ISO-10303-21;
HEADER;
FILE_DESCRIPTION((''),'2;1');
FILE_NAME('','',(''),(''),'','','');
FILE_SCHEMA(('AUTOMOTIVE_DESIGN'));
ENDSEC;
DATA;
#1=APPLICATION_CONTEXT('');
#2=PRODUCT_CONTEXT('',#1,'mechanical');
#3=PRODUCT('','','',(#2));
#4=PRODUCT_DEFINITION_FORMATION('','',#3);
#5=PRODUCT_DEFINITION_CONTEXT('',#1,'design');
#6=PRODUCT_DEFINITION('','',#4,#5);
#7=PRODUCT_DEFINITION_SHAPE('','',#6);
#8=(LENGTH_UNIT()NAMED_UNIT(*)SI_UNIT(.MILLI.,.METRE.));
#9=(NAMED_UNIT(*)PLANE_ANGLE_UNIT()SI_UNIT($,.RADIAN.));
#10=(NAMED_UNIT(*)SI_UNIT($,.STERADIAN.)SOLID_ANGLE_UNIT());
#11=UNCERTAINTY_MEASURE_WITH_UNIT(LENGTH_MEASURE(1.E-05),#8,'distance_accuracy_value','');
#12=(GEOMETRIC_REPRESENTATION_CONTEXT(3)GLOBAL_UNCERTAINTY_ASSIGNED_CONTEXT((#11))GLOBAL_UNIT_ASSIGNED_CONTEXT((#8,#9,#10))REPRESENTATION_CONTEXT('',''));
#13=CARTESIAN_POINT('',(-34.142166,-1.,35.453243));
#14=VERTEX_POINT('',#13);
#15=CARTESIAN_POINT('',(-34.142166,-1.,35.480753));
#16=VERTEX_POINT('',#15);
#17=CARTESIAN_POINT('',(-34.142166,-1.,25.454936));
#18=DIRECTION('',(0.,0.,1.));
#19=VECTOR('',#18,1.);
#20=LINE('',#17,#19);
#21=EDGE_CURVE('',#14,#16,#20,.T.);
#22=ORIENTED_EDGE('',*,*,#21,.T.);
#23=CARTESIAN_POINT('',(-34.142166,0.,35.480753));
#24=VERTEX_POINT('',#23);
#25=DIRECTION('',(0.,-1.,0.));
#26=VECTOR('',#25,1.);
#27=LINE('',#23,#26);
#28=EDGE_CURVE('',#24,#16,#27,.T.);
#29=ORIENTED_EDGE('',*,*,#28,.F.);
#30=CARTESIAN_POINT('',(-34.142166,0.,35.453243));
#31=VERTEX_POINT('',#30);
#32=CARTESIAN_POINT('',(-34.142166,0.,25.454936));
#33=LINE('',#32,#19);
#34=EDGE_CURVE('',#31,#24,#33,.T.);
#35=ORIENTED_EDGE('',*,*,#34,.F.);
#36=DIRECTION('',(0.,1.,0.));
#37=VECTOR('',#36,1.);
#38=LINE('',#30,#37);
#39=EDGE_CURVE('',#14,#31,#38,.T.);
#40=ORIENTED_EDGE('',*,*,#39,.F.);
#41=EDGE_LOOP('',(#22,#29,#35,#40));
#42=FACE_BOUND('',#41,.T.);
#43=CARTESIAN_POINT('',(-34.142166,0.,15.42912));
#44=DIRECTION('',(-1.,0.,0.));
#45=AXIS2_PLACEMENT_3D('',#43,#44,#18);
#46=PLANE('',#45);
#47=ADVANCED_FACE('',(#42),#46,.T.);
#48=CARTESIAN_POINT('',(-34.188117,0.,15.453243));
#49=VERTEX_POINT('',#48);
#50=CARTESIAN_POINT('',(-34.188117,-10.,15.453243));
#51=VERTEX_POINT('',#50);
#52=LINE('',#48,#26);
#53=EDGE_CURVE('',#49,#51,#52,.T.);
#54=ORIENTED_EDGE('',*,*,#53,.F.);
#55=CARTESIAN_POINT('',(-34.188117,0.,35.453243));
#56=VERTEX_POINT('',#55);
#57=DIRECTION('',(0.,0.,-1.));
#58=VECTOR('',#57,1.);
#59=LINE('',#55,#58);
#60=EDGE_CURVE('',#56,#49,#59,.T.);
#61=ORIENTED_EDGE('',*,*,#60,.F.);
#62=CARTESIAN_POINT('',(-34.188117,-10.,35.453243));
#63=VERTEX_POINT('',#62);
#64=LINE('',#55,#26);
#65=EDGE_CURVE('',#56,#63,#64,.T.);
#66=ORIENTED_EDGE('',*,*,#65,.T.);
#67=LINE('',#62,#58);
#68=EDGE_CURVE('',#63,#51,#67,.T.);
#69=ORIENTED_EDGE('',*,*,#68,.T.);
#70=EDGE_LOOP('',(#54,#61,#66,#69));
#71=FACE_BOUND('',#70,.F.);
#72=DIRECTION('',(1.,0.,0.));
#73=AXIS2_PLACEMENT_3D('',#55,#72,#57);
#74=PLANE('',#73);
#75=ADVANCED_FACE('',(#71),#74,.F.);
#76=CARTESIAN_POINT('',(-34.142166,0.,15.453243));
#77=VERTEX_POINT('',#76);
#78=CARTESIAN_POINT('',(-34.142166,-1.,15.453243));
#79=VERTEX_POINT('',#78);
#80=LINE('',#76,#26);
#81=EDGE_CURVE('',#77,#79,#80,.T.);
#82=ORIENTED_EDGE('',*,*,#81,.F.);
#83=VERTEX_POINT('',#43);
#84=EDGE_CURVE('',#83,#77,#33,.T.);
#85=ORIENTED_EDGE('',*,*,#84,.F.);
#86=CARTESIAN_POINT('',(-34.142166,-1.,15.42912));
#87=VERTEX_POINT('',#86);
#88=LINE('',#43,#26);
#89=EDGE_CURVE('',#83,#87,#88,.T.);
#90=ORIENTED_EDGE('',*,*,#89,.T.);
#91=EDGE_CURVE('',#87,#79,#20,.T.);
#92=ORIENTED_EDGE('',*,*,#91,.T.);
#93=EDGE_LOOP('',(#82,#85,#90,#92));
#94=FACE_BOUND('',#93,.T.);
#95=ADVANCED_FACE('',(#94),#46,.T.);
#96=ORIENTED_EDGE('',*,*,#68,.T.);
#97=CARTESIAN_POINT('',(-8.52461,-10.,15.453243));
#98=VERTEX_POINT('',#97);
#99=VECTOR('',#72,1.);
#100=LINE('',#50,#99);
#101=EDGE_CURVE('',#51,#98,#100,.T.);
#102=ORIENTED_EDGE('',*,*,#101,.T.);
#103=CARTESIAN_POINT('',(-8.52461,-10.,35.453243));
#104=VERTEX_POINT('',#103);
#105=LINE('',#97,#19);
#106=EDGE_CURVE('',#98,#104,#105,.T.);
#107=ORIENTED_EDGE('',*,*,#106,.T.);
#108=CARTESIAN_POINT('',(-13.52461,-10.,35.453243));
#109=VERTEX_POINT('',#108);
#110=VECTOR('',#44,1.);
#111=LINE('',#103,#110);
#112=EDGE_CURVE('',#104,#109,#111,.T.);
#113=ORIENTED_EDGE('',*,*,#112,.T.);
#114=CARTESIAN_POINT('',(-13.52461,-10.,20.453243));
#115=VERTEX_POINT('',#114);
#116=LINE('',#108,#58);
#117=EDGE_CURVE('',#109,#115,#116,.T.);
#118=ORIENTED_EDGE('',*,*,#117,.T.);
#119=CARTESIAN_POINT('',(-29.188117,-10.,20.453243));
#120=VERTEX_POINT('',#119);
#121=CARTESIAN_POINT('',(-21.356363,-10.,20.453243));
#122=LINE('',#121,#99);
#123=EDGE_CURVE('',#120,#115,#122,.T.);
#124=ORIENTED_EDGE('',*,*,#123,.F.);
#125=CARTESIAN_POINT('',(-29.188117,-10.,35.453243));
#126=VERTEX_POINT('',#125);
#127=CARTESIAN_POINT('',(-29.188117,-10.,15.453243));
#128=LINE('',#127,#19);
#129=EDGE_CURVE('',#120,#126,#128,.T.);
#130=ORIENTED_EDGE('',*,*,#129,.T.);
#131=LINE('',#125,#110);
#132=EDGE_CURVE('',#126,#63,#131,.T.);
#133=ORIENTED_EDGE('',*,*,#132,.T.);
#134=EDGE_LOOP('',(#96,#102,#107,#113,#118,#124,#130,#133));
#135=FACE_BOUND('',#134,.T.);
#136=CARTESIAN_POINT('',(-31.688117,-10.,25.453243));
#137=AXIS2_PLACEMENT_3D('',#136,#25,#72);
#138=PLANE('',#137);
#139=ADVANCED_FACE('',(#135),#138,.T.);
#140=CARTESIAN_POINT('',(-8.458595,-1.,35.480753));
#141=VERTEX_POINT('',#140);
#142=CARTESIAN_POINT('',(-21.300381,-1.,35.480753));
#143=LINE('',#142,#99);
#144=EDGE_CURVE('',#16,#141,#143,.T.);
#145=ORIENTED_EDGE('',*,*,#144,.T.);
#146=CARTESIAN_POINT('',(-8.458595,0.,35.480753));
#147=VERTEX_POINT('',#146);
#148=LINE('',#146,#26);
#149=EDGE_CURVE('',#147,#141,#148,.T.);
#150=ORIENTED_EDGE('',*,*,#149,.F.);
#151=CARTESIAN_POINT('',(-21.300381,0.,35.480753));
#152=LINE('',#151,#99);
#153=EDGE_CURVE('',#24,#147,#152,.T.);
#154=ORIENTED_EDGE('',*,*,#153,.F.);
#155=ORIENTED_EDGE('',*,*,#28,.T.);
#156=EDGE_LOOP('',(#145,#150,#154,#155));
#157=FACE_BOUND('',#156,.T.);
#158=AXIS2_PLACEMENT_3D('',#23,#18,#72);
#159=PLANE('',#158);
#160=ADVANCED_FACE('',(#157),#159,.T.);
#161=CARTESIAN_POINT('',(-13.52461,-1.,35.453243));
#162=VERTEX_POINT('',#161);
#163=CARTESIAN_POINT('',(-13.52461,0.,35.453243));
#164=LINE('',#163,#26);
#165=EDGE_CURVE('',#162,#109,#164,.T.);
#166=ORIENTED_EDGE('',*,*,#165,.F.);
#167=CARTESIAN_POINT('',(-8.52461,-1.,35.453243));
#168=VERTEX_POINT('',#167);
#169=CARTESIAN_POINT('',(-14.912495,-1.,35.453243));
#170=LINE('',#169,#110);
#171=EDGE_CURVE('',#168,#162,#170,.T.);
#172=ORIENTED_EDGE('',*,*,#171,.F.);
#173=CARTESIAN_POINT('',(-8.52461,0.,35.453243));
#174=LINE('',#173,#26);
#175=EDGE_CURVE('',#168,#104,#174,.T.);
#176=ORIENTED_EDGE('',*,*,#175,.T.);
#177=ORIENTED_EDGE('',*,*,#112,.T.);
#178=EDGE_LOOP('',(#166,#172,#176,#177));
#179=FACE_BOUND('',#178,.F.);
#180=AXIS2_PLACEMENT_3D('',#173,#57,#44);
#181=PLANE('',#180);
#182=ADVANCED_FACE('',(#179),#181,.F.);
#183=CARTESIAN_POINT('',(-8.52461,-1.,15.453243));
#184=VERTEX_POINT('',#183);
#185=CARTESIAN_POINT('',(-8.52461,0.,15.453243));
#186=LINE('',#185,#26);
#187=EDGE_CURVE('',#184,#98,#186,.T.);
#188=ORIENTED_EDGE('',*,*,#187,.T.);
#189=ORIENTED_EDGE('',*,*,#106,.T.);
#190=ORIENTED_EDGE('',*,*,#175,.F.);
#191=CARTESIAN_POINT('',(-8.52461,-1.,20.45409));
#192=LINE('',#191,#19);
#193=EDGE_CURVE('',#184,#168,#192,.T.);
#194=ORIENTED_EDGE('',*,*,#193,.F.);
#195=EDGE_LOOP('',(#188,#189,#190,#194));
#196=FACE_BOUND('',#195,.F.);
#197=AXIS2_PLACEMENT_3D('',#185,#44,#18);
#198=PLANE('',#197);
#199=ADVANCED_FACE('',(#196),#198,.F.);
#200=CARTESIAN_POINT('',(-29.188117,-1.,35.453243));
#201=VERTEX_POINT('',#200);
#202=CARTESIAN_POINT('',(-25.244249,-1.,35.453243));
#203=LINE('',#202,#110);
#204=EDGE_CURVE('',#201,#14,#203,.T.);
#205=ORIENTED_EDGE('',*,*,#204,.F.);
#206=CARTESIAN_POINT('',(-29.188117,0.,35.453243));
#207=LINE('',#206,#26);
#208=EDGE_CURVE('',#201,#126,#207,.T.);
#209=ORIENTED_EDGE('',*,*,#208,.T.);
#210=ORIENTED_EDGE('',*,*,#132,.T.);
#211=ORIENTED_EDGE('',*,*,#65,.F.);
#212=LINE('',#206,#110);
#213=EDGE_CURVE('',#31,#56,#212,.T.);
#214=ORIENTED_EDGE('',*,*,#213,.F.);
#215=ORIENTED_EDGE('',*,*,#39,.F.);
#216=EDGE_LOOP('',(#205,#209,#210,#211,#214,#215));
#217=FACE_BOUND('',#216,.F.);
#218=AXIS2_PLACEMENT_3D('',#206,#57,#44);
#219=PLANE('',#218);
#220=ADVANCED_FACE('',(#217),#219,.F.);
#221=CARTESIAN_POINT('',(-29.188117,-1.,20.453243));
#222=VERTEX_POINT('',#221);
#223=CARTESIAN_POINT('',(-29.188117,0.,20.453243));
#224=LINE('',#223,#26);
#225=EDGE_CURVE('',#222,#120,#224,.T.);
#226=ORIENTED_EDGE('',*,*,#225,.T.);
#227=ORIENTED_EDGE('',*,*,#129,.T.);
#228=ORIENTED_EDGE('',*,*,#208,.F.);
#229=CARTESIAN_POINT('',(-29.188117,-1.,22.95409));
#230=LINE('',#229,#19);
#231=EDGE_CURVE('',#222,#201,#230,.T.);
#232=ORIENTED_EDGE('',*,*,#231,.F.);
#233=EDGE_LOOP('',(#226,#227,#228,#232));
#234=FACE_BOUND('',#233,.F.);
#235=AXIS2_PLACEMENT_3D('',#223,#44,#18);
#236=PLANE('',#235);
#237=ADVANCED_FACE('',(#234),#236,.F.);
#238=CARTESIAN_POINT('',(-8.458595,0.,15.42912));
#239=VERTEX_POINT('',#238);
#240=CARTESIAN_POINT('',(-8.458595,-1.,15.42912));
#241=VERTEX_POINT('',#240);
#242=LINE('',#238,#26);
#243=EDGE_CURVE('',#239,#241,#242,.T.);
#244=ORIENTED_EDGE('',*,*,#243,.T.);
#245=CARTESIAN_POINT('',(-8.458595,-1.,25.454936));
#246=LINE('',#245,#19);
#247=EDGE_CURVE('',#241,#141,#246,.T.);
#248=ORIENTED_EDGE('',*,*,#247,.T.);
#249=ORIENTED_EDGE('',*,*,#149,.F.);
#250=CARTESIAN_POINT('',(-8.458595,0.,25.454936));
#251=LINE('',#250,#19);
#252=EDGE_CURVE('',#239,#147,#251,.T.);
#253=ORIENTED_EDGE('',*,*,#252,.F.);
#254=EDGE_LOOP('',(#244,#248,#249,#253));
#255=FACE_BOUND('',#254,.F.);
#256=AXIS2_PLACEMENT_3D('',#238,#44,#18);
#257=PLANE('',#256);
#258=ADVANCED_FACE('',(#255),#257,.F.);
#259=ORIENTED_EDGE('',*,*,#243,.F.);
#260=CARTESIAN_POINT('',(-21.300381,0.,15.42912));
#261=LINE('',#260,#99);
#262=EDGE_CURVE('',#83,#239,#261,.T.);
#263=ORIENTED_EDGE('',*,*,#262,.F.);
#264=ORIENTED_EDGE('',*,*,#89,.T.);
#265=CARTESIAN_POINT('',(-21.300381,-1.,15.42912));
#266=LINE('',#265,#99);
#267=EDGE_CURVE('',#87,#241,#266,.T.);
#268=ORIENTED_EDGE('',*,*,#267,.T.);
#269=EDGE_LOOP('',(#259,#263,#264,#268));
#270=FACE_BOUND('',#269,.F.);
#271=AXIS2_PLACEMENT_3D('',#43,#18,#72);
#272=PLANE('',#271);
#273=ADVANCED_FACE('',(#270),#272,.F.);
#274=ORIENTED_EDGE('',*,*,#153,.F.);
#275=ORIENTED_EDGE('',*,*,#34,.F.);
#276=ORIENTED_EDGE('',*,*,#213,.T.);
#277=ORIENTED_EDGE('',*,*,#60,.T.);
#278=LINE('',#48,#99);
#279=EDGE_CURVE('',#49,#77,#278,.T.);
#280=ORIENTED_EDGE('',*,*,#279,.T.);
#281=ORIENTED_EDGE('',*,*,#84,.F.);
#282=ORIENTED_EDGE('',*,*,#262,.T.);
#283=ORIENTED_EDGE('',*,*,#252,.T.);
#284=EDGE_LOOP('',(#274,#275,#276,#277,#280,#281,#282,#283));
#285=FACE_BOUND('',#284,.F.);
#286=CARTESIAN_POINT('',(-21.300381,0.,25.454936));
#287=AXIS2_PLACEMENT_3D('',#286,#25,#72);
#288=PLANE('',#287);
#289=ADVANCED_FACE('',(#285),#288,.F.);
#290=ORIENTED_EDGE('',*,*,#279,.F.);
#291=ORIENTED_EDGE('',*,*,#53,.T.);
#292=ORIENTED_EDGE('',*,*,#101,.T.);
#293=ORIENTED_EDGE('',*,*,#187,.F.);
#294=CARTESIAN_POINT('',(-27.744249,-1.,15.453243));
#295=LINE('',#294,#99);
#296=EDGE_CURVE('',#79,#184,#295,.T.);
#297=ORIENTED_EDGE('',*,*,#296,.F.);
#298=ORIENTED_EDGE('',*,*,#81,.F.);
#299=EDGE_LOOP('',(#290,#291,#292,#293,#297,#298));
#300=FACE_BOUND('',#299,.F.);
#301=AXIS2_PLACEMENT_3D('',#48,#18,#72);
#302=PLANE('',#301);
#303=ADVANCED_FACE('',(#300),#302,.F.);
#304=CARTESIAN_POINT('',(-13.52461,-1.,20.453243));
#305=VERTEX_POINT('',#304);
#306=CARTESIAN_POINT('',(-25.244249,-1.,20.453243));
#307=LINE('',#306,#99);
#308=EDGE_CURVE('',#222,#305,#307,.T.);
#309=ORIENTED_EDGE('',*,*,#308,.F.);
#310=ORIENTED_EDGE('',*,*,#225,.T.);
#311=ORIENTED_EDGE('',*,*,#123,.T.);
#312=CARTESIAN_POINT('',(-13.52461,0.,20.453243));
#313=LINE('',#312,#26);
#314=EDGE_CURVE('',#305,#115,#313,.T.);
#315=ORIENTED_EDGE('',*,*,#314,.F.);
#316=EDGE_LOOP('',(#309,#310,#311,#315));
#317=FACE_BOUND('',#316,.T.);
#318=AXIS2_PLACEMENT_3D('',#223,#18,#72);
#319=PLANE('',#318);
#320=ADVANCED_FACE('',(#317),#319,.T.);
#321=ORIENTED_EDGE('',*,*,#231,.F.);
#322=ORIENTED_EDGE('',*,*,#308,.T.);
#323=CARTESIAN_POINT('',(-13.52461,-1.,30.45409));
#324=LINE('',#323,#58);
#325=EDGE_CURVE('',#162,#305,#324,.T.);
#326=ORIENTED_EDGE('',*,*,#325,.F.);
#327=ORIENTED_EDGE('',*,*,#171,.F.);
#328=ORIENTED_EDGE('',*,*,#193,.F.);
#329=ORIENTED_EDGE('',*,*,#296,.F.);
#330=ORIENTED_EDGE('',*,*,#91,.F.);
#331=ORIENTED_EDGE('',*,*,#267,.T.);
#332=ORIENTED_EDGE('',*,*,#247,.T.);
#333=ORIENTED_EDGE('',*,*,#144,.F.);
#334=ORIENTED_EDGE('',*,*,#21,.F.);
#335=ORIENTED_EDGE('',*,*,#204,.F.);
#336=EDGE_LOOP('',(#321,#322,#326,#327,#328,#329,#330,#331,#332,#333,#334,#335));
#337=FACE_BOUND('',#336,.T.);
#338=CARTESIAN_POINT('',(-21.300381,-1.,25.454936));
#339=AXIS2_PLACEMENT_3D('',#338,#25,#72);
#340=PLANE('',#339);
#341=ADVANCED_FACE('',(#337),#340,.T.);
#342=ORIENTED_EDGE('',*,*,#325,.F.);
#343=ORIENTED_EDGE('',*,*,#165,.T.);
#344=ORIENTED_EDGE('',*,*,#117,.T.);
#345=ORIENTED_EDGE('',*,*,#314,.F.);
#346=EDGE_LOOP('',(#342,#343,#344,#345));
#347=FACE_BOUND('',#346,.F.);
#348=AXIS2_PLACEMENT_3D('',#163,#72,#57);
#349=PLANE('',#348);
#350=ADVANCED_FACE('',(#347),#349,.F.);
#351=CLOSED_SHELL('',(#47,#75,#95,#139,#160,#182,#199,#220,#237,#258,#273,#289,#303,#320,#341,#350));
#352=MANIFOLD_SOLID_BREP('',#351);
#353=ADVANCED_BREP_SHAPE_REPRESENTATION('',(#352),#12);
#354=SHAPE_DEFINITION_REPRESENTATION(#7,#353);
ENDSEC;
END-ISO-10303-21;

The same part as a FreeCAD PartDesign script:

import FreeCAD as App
import Part
import Sketcher

V = App.Vector


def add_polygon(sketch, points):
    """Adds a closed chain of lines whose ends are joined by coincident constraints."""
    first, n = sketch.GeometryCount, len(points)
    for a, b in zip(points, points[1:] + points[:1]):
        sketch.addGeometry(Part.LineSegment(App.Vector(*a, 0), App.Vector(*b, 0)), False)
    for i in range(n):
        sketch.addConstraint(Sketcher.Constraint("Coincident", first + i, 2, first + (i + 1) % n, 1))

doc = App.newDocument("Part")
body = doc.addObject("PartDesign::Body", "Body")

sketch1 = doc.addObject("Sketcher::SketchObject", "Sketch")
body.addObject(sketch1)
sketch1.AttachmentSupport = (doc.XZ_Plane, [""])
sketch1.MapMode = "FlatFace"
add_polygon(sketch1, [(-29.2, 35.5), (-34.2, 35.5), (-34.2, 15.5), (-8.5, 15.5), (-8.5, 35.5), (-13.5, 35.5), (-13.5, 20.5), (-29.2, 20.5)])
sketch1.addConstraint([
    Sketcher.Constraint("Horizontal", 0),
    Sketcher.Constraint("Vertical", 1),
    Sketcher.Constraint("Horizontal", 2),
    Sketcher.Constraint("Vertical", 3),
    Sketcher.Constraint("Horizontal", 4),
    Sketcher.Constraint("Vertical", 5),
    Sketcher.Constraint("Horizontal", 6),
    Sketcher.Constraint("Vertical", 7),
    Sketcher.Constraint("Horizontal", 0, 2, 3, 2),
    Sketcher.Constraint("Equal", 0, 4),
    Sketcher.Constraint("DistanceX", 0, 2, 0, 1, 5.0),
    Sketcher.Constraint("DistanceY", 1, 2, 1, 1, 20.0),
    Sketcher.Constraint("DistanceY", 5, 2, 5, 1, 15.0),
    Sketcher.Constraint("DistanceX", 2, 1, 2, 2, 25.663507),
    Sketcher.Constraint("DistanceX", 2, 2, -1, 1, 8.52461),
    Sketcher.Constraint("DistanceY", -1, 1, 0, 2, 35.453243),
])
pad1 = doc.addObject("PartDesign::Pad", "Pad")
body.addObject(pad1)
pad1.Profile = sketch1
pad1.Length = 10

sketch2 = doc.addObject("Sketcher::SketchObject", "Sketch001")
body.addObject(sketch2)
sketch2.AttachmentSupport = (doc.XZ_Plane, [""])
sketch2.MapMode = "FlatFace"
add_polygon(sketch2, [(-34, 35), (-34, 15), (-8, 15), (-8, 35)])
sketch2.addConstraint([
    Sketcher.Constraint("Vertical", 0),
    Sketcher.Constraint("Horizontal", 1),
    Sketcher.Constraint("Vertical", 2),
    Sketcher.Constraint("Horizontal", 3),
    Sketcher.Constraint("DistanceX", 1, 1, 1, 2, 25.683572),
    Sketcher.Constraint("DistanceY", 0, 2, 0, 1, 20.051633),
    Sketcher.Constraint("DistanceY", -1, 1, 0, 2, 15.42912),
    Sketcher.Constraint("DistanceX", 0, 2, -1, 1, 34.142166),
])
pad2 = doc.addObject("PartDesign::Pad", "Pad001")
body.addObject(pad2)
pad2.Profile = sketch2
pad2.Length = 1

doc.recompute()
